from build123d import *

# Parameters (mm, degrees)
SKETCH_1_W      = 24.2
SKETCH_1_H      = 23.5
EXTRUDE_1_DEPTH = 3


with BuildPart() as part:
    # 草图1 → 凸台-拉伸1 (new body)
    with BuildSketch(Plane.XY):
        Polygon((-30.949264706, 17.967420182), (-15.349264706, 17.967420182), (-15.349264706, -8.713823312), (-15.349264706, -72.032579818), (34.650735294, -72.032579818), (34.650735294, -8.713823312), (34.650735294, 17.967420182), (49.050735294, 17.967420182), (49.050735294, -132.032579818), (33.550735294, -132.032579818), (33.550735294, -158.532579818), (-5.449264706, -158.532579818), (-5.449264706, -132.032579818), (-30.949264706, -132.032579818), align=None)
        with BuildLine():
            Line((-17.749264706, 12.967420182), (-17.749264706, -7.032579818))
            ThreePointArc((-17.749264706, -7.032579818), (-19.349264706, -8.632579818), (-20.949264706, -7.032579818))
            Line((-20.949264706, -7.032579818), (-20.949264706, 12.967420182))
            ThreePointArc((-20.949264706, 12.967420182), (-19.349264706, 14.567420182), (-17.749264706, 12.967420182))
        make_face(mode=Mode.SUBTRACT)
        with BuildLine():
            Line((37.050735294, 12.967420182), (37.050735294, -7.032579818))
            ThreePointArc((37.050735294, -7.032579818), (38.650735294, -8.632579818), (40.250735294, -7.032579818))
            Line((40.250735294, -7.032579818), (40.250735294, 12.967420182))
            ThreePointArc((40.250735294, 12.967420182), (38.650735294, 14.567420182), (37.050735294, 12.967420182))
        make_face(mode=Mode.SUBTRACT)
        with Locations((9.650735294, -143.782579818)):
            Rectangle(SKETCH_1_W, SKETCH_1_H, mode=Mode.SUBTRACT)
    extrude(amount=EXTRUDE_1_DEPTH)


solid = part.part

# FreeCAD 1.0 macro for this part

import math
import FreeCAD as App
import Part
import Sketcher

V = App.Vector

doc = App.newDocument("Part")
params = doc.addObject("Spreadsheet::Sheet", "Params")
for row, (alias, value) in enumerate([
    ("sketch1_radius", "1.6 mm"),
    ("sketch1_width", "39 mm"),
    ("sketch1_width2", "50 mm"),
    ("sketch1_height", "150 mm"),
    ("sketch1_height2", "90 mm"),
    ("pad1_length", "3 mm"),
], start=1):
    params.set(f"A{row}", alias)
    params.set(f"B{row}", "=" + value)
    params.setAlias(f"B{row}", alias)

body = doc.addObject("PartDesign::Body", "Body")

sketch1 = body.newObject("Sketcher::SketchObject", "Sketch")
sketch1.AttachmentSupport = (doc.getObject("XY_Plane"), [""])
sketch1.MapMode = "FlatFace"
sketch1.addGeometry(Part.LineSegment(V(-15.3, 18, 0), V(-30.9, 18, 0)), False)
sketch1.addGeometry(Part.LineSegment(V(-30.9, 18, 0), V(-30.9, -132, 0)), False)
sketch1.addGeometry(Part.LineSegment(V(-30.9, -132, 0), V(-5.4, -132, 0)), False)
sketch1.addGeometry(Part.LineSegment(V(-5.4, -132, 0), V(-5.4, -158.5, 0)), False)
sketch1.addGeometry(Part.LineSegment(V(-5.4, -158.5, 0), V(33.6, -158.5, 0)), False)
sketch1.addGeometry(Part.LineSegment(V(33.6, -158.5, 0), V(33.6, -132, 0)), False)
sketch1.addGeometry(Part.LineSegment(V(33.6, -132, 0), V(49.1, -132, 0)), False)
sketch1.addGeometry(Part.LineSegment(V(49.1, -132, 0), V(49.1, 18, 0)), False)
sketch1.addGeometry(Part.LineSegment(V(49.1, 18, 0), V(34.7, 18, 0)), False)
sketch1.addGeometry(Part.LineSegment(V(34.7, 18, 0), V(34.7, -72, 0)), False)
sketch1.addGeometry(Part.LineSegment(V(34.7, -72, 0), V(-15.3, -72, 0)), False)
sketch1.addGeometry(Part.LineSegment(V(-15.3, -72, 0), V(-15.3, 18, 0)), False)
sketch1.addGeometry(Part.LineSegment(V(-2.4, -155.5, 0), V(-2.4, -132, 0)), False)
sketch1.addGeometry(Part.LineSegment(V(-2.4, -132, 0), V(21.8, -132, 0)), False)
sketch1.addGeometry(Part.LineSegment(V(21.8, -132, 0), V(21.8, -155.5, 0)), False)
sketch1.addGeometry(Part.LineSegment(V(21.8, -155.5, 0), V(-2.4, -155.5, 0)), False)
sketch1.addGeometry(Part.ArcOfCircle(Part.Circle(V(38.7, 13, 0), V(0, 0, 1), 1.6), math.radians(0), math.radians(180)), False)
sketch1.addGeometry(Part.LineSegment(V(40.3, 13, 0), V(40.3, -7, 0)), False)
sketch1.addGeometry(Part.ArcOfCircle(Part.Circle(V(38.7, -7, 0), V(0, 0, 1), 1.6), math.radians(180), math.radians(360)), False)
sketch1.addGeometry(Part.LineSegment(V(37.1, -7, 0), V(37.1, 13, 0)), False)
sketch1.addGeometry(Part.LineSegment(V(-17.7, 13, 0), V(-17.7, -7, 0)), False)
sketch1.addGeometry(Part.ArcOfCircle(Part.Circle(V(-19.3, -7, 0), V(0, 0, 1), 1.6), math.radians(180), math.radians(360)), False)
sketch1.addGeometry(Part.LineSegment(V(-20.9, -7, 0), V(-20.9, 13, 0)), False)
sketch1.addGeometry(Part.ArcOfCircle(Part.Circle(V(-19.3, 13, 0), V(0, 0, 1), 1.6), math.radians(0), math.radians(180)), False)
sketch1.addConstraint(Sketcher.Constraint("Coincident", 0, 2, 1, 1))
sketch1.addConstraint(Sketcher.Constraint("Coincident", 1, 2, 2, 1))
sketch1.addConstraint(Sketcher.Constraint("Coincident", 2, 2, 3, 1))
sketch1.addConstraint(Sketcher.Constraint("Coincident", 3, 2, 4, 1))
sketch1.addConstraint(Sketcher.Constraint("Coincident", 4, 2, 5, 1))
sketch1.addConstraint(Sketcher.Constraint("Coincident", 5, 2, 6, 1))
sketch1.addConstraint(Sketcher.Constraint("Coincident", 6, 2, 7, 1))
sketch1.addConstraint(Sketcher.Constraint("Coincident", 7, 2, 8, 1))
sketch1.addConstraint(Sketcher.Constraint("Coincident", 8, 2, 9, 1))
sketch1.addConstraint(Sketcher.Constraint("Coincident", 9, 2, 10, 1))
sketch1.addConstraint(Sketcher.Constraint("Coincident", 10, 2, 11, 1))
sketch1.addConstraint(Sketcher.Constraint("Coincident", 11, 2, 0, 1))
sketch1.addConstraint(Sketcher.Constraint("Coincident", 12, 2, 13, 1))
sketch1.addConstraint(Sketcher.Constraint("Coincident", 13, 2, 14, 1))
sketch1.addConstraint(Sketcher.Constraint("Coincident", 14, 2, 15, 1))
sketch1.addConstraint(Sketcher.Constraint("Coincident", 15, 2, 12, 1))
sketch1.addConstraint(Sketcher.Constraint("Tangent", 16, 1, 17, 1))
sketch1.addConstraint(Sketcher.Constraint("Tangent", 17, 2, 18, 2))
sketch1.addConstraint(Sketcher.Constraint("Tangent", 18, 1, 19, 1))
sketch1.addConstraint(Sketcher.Constraint("Tangent", 19, 2, 16, 2))
sketch1.addConstraint(Sketcher.Constraint("Tangent", 20, 2, 21, 2))
sketch1.addConstraint(Sketcher.Constraint("Tangent", 21, 1, 22, 1))
sketch1.addConstraint(Sketcher.Constraint("Tangent", 22, 2, 23, 2))
sketch1.addConstraint(Sketcher.Constraint("Tangent", 23, 1, 20, 1))
sketch1.addConstraint(Sketcher.Constraint("Horizontal", 0))
sketch1.addConstraint(Sketcher.Constraint("Vertical", 1))
sketch1.addConstraint(Sketcher.Constraint("Horizontal", 2))
sketch1.addConstraint(Sketcher.Constraint("Vertical", 3))
sketch1.addConstraint(Sketcher.Constraint("Horizontal", 4))
sketch1.addConstraint(Sketcher.Constraint("Vertical", 5))
sketch1.addConstraint(Sketcher.Constraint("Horizontal", 6))
sketch1.addConstraint(Sketcher.Constraint("Vertical", 7))
sketch1.addConstraint(Sketcher.Constraint("Horizontal", 8))
sketch1.addConstraint(Sketcher.Constraint("Vertical", 9))
sketch1.addConstraint(Sketcher.Constraint("Horizontal", 10))
sketch1.addConstraint(Sketcher.Constraint("Vertical", 11))
sketch1.addConstraint(Sketcher.Constraint("Vertical", 12))
sketch1.addConstraint(Sketcher.Constraint("Horizontal", 13))
sketch1.addConstraint(Sketcher.Constraint("Vertical", 14))
sketch1.addConstraint(Sketcher.Constraint("Horizontal", 15))
sketch1.addConstraint(Sketcher.Constraint("Vertical", 17))
sketch1.addConstraint(Sketcher.Constraint("Vertical", 19))
sketch1.addConstraint(Sketcher.Constraint("Vertical", 20))
sketch1.addConstraint(Sketcher.Constraint("Vertical", 22))
sketch1.addConstraint(Sketcher.Constraint("Equal", 18, 21))
sketch1.addConstraint(Sketcher.Constraint("Horizontal", 18, 3, 21, 3))
sketch1.addConstraint(Sketcher.Constraint("Horizontal", 16, 3, 23, 3))
sketch1.addConstraint(Sketcher.Constraint("Horizontal", 2, 2, 5, 2))
sketch1.addConstraint(Sketcher.Constraint("Horizontal", 0, 2, 7, 2))
sketch1.addConstraint(Sketcher.Constraint("Horizontal", 6, 2, 12, 2))
sketch1.addConstraint(Sketcher.Constraint("Radius", 16, 1.6))
sketch1.addConstraint(Sketcher.Constraint("DistanceX", 4, 1, 4, 2, 39.0))
sketch1.addConstraint(Sketcher.Constraint("DistanceX", 10, 2, 10, 1, 50.0))
sketch1.addConstraint(Sketcher.Constraint("DistanceY", 1, 2, 1, 1, 150.0))
sketch1.addConstraint(Sketcher.Constraint("DistanceY", 9, 2, 9, 1, 90.0))
sketch1.addConstraint(Sketcher.Constraint("DistanceY", 17, 2, 17, 1, 20.0))
sketch1.addConstraint(Sketcher.Constraint("DistanceX", 0, 2, 0, 1, 15.6))
sketch1.addConstraint(Sketcher.Constraint("DistanceX", 2, 1, 2, 2, 25.5))
sketch1.addConstraint(Sketcher.Constraint("DistanceX", 6, 1, 6, 2, 15.5))
sketch1.addConstraint(Sketcher.Constraint("DistanceX", 13, 1, 13, 2, 24.2))
sketch1.addConstraint(Sketcher.Constraint("DistanceY", 3, 2, 3, 1, 26.5))
sketch1.addConstraint(Sketcher.Constraint("DistanceY", 12, 1, 12, 2, 23.5))
sketch1.addConstraint(Sketcher.Constraint("DistanceX", 21, 3, 18, 3, 58.0))
sketch1.addConstraint(Sketcher.Constraint("DistanceY", 23, 3, 0, 2, 5.0))
sketch1.addConstraint(Sketcher.Constraint("DistanceX", 8, 2, 16, 3, 4.0))
sketch1.addConstraint(Sketcher.Constraint("DistanceX", 2, 2, 12, 2, 3.0))
sketch1.addConstraint(Sketcher.Constraint("DistanceY", -1, 1, 16, 3, 12.96742))
sketch1.addConstraint(Sketcher.Constraint("DistanceX", -1, 1, 16, 3, 38.650735))
sketch1.setExpression("Constraints[50]", "Params.sketch1_radius")
sketch1.setExpression("Constraints[51]", "Params.sketch1_width")
sketch1.setExpression("Constraints[52]", "Params.sketch1_width2")
sketch1.setExpression("Constraints[53]", "Params.sketch1_height")
sketch1.setExpression("Constraints[54]", "Params.sketch1_height2")
pad1 = body.newObject("PartDesign::Pad", "Pad")
pad1.Profile = sketch1
pad1.setExpression("Length", "Params.pad1_length")

doc.recompute()
